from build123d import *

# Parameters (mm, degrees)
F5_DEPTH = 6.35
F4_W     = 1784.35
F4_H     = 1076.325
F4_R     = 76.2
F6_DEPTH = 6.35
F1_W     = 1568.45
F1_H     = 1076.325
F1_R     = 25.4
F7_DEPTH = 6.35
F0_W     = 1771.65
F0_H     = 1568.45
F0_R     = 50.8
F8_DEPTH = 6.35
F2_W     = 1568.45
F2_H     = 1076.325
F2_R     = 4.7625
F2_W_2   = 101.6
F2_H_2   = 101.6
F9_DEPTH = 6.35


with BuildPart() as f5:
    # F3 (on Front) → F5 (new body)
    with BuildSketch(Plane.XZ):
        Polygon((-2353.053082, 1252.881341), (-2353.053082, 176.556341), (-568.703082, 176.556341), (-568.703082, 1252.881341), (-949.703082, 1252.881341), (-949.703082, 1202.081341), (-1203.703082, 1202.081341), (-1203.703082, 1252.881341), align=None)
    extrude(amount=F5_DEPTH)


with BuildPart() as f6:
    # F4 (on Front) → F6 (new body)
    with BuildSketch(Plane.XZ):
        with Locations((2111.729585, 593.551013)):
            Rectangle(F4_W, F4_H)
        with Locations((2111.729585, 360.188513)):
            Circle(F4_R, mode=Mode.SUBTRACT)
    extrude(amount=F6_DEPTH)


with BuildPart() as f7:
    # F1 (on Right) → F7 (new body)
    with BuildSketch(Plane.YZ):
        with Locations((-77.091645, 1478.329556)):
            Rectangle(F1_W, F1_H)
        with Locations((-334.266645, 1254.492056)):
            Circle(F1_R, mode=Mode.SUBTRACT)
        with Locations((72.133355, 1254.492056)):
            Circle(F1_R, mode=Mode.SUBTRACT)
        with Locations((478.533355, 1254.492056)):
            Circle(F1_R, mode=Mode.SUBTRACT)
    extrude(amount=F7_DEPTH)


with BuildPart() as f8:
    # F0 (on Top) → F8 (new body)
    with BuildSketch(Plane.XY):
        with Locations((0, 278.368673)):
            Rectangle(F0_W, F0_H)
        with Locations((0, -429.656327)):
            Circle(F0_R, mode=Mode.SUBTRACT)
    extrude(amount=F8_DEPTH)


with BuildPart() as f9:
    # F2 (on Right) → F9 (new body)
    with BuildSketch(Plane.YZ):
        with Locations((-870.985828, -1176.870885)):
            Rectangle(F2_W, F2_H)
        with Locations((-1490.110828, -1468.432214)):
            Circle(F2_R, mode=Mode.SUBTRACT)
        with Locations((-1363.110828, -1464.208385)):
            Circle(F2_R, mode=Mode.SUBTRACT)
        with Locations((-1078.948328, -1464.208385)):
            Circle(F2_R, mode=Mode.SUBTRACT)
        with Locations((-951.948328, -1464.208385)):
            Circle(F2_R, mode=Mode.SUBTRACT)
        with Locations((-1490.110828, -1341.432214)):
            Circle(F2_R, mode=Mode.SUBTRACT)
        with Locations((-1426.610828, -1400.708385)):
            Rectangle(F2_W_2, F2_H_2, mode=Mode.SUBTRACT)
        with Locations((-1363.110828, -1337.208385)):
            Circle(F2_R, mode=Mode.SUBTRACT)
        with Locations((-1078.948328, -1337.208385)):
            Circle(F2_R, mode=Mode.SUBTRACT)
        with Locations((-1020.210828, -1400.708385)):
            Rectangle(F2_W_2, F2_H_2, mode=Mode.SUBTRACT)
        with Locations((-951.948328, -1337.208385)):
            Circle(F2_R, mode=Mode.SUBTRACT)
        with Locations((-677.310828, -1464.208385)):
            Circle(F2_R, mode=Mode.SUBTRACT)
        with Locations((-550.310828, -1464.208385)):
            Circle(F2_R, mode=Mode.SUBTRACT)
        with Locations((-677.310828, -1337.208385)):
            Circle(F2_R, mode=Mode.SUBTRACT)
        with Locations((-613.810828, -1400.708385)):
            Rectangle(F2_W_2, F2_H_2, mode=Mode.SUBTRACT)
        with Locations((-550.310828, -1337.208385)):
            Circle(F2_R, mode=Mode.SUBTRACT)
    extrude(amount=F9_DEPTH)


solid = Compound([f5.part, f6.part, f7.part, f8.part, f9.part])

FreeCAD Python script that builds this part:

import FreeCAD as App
import Part
import Sketcher
Q = App.Units.Quantity


def add_polygon(sketch, points):
    """Adds a closed chain of lines whose ends are joined by coincident constraints."""
    first, n = sketch.GeometryCount, len(points)
    for a, b in zip(points, points[1:] + points[:1]):
        sketch.addGeometry(Part.LineSegment(App.Vector(*a, 0), App.Vector(*b, 0)), False)
    for i in range(n):
        sketch.addConstraint(Sketcher.Constraint("Coincident", first + i, 2, first + (i + 1) % n, 1))

doc = App.newDocument("Part")
body = doc.addObject("PartDesign::Body", "Body")

sketch1 = body.newObject("Sketcher::SketchObject", "Sketch")
sketch1.AttachmentSupport = (doc.getObject("XZ_Plane"), [""])
sketch1.MapMode = "FlatFace"
add_polygon(sketch1, [(-2353, 1253), (-2353, 177), (-569, 177), (-569, 1253), (-950, 1253), (-950, 1202), (-1204, 1202), (-1204, 1253)])
sketch1.addConstraint(Sketcher.Constraint("Vertical", 0))
sketch1.addConstraint(Sketcher.Constraint("Horizontal", 1))
sketch1.addConstraint(Sketcher.Constraint("Vertical", 2))
sketch1.addConstraint(Sketcher.Constraint("Horizontal", 3))
sketch1.addConstraint(Sketcher.Constraint("Vertical", 4))
sketch1.addConstraint(Sketcher.Constraint("Horizontal", 5))
sketch1.addConstraint(Sketcher.Constraint("Vertical", 6))
sketch1.addConstraint(Sketcher.Constraint("Horizontal", 7))
sketch1.addConstraint(Sketcher.Constraint("Horizontal", 3, 2, 6, 2))
sketch1.addConstraint(Sketcher.Constraint("DistanceX", 3, 2, 3, 1, Q("15 in")))
sketch1.addConstraint(Sketcher.Constraint("DistanceX", 5, 2, 5, 1, Q("10 in")))
sketch1.addConstraint(Sketcher.Constraint("DistanceY", 4, 2, 4, 1, Q("2 in")))
sketch1.addConstraint(Sketcher.Constraint("DistanceX", 1, 1, 1, 2, Q("70.25 in")))
sketch1.addConstraint(Sketcher.Constraint("DistanceY", 0, 2, 0, 1, Q("42.375 in")))
sketch1.addConstraint(Sketcher.Constraint("DistanceX", 0, 2, -1, 1, 2353.053082))
sketch1.addConstraint(Sketcher.Constraint("DistanceY", -1, 1, 0, 2, 176.556341))
pad1 = body.newObject("PartDesign::Pad", "Pad")
pad1.Profile = sketch1
pad1.Length = Q("0.25 in")
body2 = doc.addObject("PartDesign::Body", "Body001")

sketch2 = body2.newObject("Sketcher::SketchObject", "Sketch001")
sketch2.AttachmentSupport = (doc.getObject("XZ_Plane001"), [""])
sketch2.MapMode = "FlatFace"
add_polygon(sketch2, [(1220, 1132), (1220, 55), (3004, 55), (3004, 1132)])
sketch2.addGeometry(Part.Circle(App.Vector(2112, 360, 0), App.Vector(0, 0, 1), 76), False)
sketch2.addConstraint(Sketcher.Constraint("Vertical", 0))
sketch2.addConstraint(Sketcher.Constraint("Horizontal", 1))
sketch2.addConstraint(Sketcher.Constraint("Vertical", 2))
sketch2.addConstraint(Sketcher.Constraint("Horizontal", 3))
sketch2.addConstraint(Sketcher.Constraint("Diameter", 4, Q("6 in")))
sketch2.addConstraint(Sketcher.Constraint("DistanceY", 0, 2, 4, 3, Q("12 in")))
sketch2.addConstraint(Sketcher.Constraint("DistanceX", 1, 1, 1, 2, Q("70.25 in")))
sketch2.addConstraint(Sketcher.Constraint("DistanceY", 0, 2, 0, 1, Q("42.375 in")))
sketch2.addConstraint(Sketcher.Constraint("DistanceX", 0, 2, 4, 3, Q("35.125 in")))
sketch2.addConstraint(Sketcher.Constraint("DistanceX", -1, 1, 4, 3, 2111.729585))
sketch2.addConstraint(Sketcher.Constraint("DistanceY", -1, 1, 4, 3, 360.188513))
pad2 = body2.newObject("PartDesign::Pad", "Pad001")
pad2.Profile = sketch2
pad2.Length = Q("0.25 in")
body3 = doc.addObject("PartDesign::Body", "Body002")

sketch3 = body3.newObject("Sketcher::SketchObject", "Sketch002")
sketch3.AttachmentSupport = (doc.getObject("YZ_Plane002"), [""])
sketch3.MapMode = "FlatFace"
add_polygon(sketch3, [(-861, 2016), (-861, 940), (707, 940), (707, 2016)])
sketch3.addGeometry(Part.Circle(App.Vector(-334, 1254, 0), App.Vector(0, 0, 1), 25), False)
sketch3.addGeometry(Part.Circle(App.Vector(72, 1254, 0), App.Vector(0, 0, 1), 25), False)
sketch3.addGeometry(Part.Circle(App.Vector(479, 1254, 0), App.Vector(0, 0, 1), 25), False)
sketch3.addConstraint(Sketcher.Constraint("Vertical", 0))
sketch3.addConstraint(Sketcher.Constraint("Horizontal", 1))
sketch3.addConstraint(Sketcher.Constraint("Vertical", 2))
sketch3.addConstraint(Sketcher.Constraint("Horizontal", 3))
sketch3.addConstraint(Sketcher.Constraint("Equal", 4, 5))
sketch3.addConstraint(Sketcher.Constraint("Equal", 5, 6))
sketch3.addConstraint(Sketcher.Constraint("Horizontal", 4, 3, 5, 3))
sketch3.addConstraint(Sketcher.Constraint("Horizontal", 5, 3, 6, 3))
sketch3.addConstraint(Sketcher.Constraint("Diameter", 4, Q("2 in")))
sketch3.addConstraint(Sketcher.Constraint("DistanceX", 4, 3, 5, 3, Q("16 in")))
sketch3.addConstraint(Sketcher.Constraint("DistanceX", 5, 3, 6, 3, Q("16 in")))
sketch3.addConstraint(Sketcher.Constraint("DistanceX", 6, 3, 1, 2, Q("9 in")))
sketch3.addConstraint(Sketcher.Constraint("DistanceY", 6, 3, 2, 2, Q("30 in")))
sketch3.addConstraint(Sketcher.Constraint("DistanceX", 1, 1, 1, 2, Q("61.75 in")))
sketch3.addConstraint(Sketcher.Constraint("DistanceY", 0, 2, 0, 1, Q("42.375 in")))
sketch3.addConstraint(Sketcher.Constraint("DistanceX", 4, 3, -1, 1, 334.266645))
sketch3.addConstraint(Sketcher.Constraint("DistanceY", -1, 1, 4, 3, 1254.492056))
pad3 = body3.newObject("PartDesign::Pad", "Pad002")
pad3.Profile = sketch3
pad3.Length = Q("0.25 in")
body4 = doc.addObject("PartDesign::Body", "Body003")

sketch4 = body4.newObject("Sketcher::SketchObject", "Sketch003")
sketch4.AttachmentSupport = (doc.getObject("XY_Plane003"), [""])
sketch4.MapMode = "FlatFace"
add_polygon(sketch4, [(-886, 1063), (-886, -506), (886, -506), (886, 1063)])
sketch4.addGeometry(Part.Circle(App.Vector(0, -430, 0), App.Vector(0, 0, 1), 51), False)
sketch4.addConstraint(Sketcher.Constraint("Vertical", 0))
sketch4.addConstraint(Sketcher.Constraint("Horizontal", 1))
sketch4.addConstraint(Sketcher.Constraint("Vertical", 2))
sketch4.addConstraint(Sketcher.Constraint("Horizontal", 3))
sketch4.addConstraint(Sketcher.Constraint("PointOnObject", 4, 3, -2))
sketch4.addConstraint(Sketcher.Constraint("Diameter", 4, Q("4 in")))
sketch4.addConstraint(Sketcher.Constraint("DistanceY", 0, 2, 4, 3, Q("3 in")))
sketch4.addConstraint(Sketcher.Constraint("DistanceX", 1, 1, 1, 2, Q("69.75 in")))
sketch4.addConstraint(Sketcher.Constraint("DistanceY", 0, 2, 0, 1, Q("61.75 in")))
sketch4.addConstraint(Sketcher.Constraint("DistanceX", 0, 2, -1, 1, Q("34.875 in")))
sketch4.addConstraint(Sketcher.Constraint("DistanceY", 4, 3, -1, 1, 429.656327))
pad4 = body4.newObject("PartDesign::Pad", "Pad003")
pad4.Profile = sketch4
pad4.Length = Q("0.25 in")
body5 = doc.addObject("PartDesign::Body", "Body004")

sketch5 = body5.newObject("Sketcher::SketchObject", "Sketch004")
sketch5.AttachmentSupport = (doc.getObject("YZ_Plane004"), [""])
sketch5.MapMode = "FlatFace"
add_polygon(sketch5, [(-1655.2, -638.7), (-1655.2, -1715), (-86.8, -1715), (-86.8, -638.7)])
sketch5.addGeometry(Part.Circle(App.Vector(-1490.1, -1468.4, 0), App.Vector(0, 0, 1), 4.8), False)
sketch5.addGeometry(Part.Circle(App.Vector(-1363.1, -1464.2, 0), App.Vector(0, 0, 1), 4.8), False)
sketch5.addGeometry(Part.Circle(App.Vector(-1078.9, -1464.2, 0), App.Vector(0, 0, 1), 4.8), False)
sketch5.addGeometry(Part.Circle(App.Vector(-951.9, -1464.2, 0), App.Vector(0, 0, 1), 4.8), False)
sketch5.addGeometry(Part.Circle(App.Vector(-677.3, -1464.2, 0), App.Vector(0, 0, 1), 4.8), False)
sketch5.addGeometry(Part.Circle(App.Vector(-550.3, -1464.2, 0), App.Vector(0, 0, 1), 4.8), False)
add_polygon(sketch5, [(-1375.8, -1451.5), (-1477.4, -1451.5), (-1477.4, -1349.9), (-1375.8, -1349.9)])
sketch5.addGeometry(Part.Circle(App.Vector(-1490.1, -1341.4, 0), App.Vector(0, 0, 1), 4.8), False)
sketch5.addGeometry(Part.Circle(App.Vector(-1363.1, -1337.2, 0), App.Vector(0, 0, 1), 4.8), False)
sketch5.addGeometry(Part.Circle(App.Vector(-1078.9, -1337.2, 0), App.Vector(0, 0, 1), 4.8), False)
add_polygon(sketch5, [(-969.4, -1451.5), (-1071, -1451.5), (-1071, -1349.9), (-969.4, -1349.9)])
add_polygon(sketch5, [(-563, -1451.5), (-664.6, -1451.5), (-664.6, -1349.9), (-563, -1349.9)])
sketch5.addGeometry(Part.Circle(App.Vector(-951.9, -1337.2, 0), App.Vector(0, 0, 1), 4.8), False)
sketch5.addGeometry(Part.Circle(App.Vector(-677.3, -1337.2, 0), App.Vector(0, 0, 1), 4.8), False)
sketch5.addGeometry(Part.Circle(App.Vector(-550.3, -1337.2, 0), App.Vector(0, 0, 1), 4.8), False)
sketch5.addConstraint(Sketcher.Constraint("Vertical", 0))
sketch5.addConstraint(Sketcher.Constraint("Horizontal", 1))
sketch5.addConstraint(Sketcher.Constraint("Vertical", 2))
sketch5.addConstraint(Sketcher.Constraint("Horizontal", 3))
sketch5.addConstraint(Sketcher.Constraint("Horizontal", 10))
sketch5.addConstraint(Sketcher.Constraint("Vertical", 11))
sketch5.addConstraint(Sketcher.Constraint("Horizontal", 12))
sketch5.addConstraint(Sketcher.Constraint("Vertical", 13))
sketch5.addConstraint(Sketcher.Constraint("Horizontal", 17))
sketch5.addConstraint(Sketcher.Constraint("Vertical", 18))
sketch5.addConstraint(Sketcher.Constraint("Horizontal", 19))
sketch5.addConstraint(Sketcher.Constraint("Vertical", 20))
sketch5.addConstraint(Sketcher.Constraint("Horizontal", 21))
sketch5.addConstraint(Sketcher.Constraint("Vertical", 22))
sketch5.addConstraint(Sketcher.Constraint("Horizontal", 23))
sketch5.addConstraint(Sketcher.Constraint("Vertical", 24))
sketch5.addConstraint(Sketcher.Constraint("Equal", 4, 5))
sketch5.addConstraint(Sketcher.Constraint("Equal", 5, 6))
sketch5.addConstraint(Sketcher.Constraint("Equal", 6, 7))
sketch5.addConstraint(Sketcher.Constraint("Equal", 7, 8))
sketch5.addConstraint(Sketcher.Constraint("Equal", 8, 9))
sketch5.addConstraint(Sketcher.Constraint("Equal", 9, 14))
sketch5.addConstraint(Sketcher.Constraint("Equal", 14, 15))
sketch5.addConstraint(Sketcher.Constraint("Equal", 15, 16))
sketch5.addConstraint(Sketcher.Constraint("Equal", 16, 25))
sketch5.addConstraint(Sketcher.Constraint("Equal", 25, 26))
sketch5.addConstraint(Sketcher.Constraint("Equal", 26, 27))
sketch5.addConstraint(Sketcher.Constraint("Horizontal", 5, 3, 6, 3))
sketch5.addConstraint(Sketcher.Constraint("Horizontal", 6, 3, 7, 3))
sketch5.addConstraint(Sketcher.Constraint("Horizontal", 7, 3, 8, 3))
sketch5.addConstraint(Sketcher.Constraint("Horizontal", 8, 3, 9, 3))
sketch5.addConstraint(Sketcher.Constraint("Horizontal", 15, 3, 16, 3))
sketch5.addConstraint(Sketcher.Constraint("Horizontal", 16, 3, 25, 3))
sketch5.addConstraint(Sketcher.Constraint("Horizontal", 25, 3, 26, 3))
sketch5.addConstraint(Sketcher.Constraint("Horizontal", 26, 3, 27, 3))
sketch5.addConstraint(Sketcher.Constraint("Horizontal", 13, 2, 17, 2))
sketch5.addConstraint(Sketcher.Constraint("Horizontal", 12, 2, 18, 2))
sketch5.addConstraint(Sketcher.Constraint("Horizontal", 20, 2, 21, 2))
sketch5.addConstraint(Sketcher.Constraint("Horizontal", 19, 2, 22, 2))
sketch5.addConstraint(Sketcher.Constraint("Vertical", 4, 3, 14, 3))
sketch5.addConstraint(Sketcher.Constraint("Vertical", 5, 3, 15, 3))
sketch5.addConstraint(Sketcher.Constraint("Vertical", 6, 3, 16, 3))
sketch5.addConstraint(Sketcher.Constraint("Vertical", 7, 3, 25, 3))
sketch5.addConstraint(Sketcher.Constraint("Vertical", 8, 3, 26, 3))
sketch5.addConstraint(Sketcher.Constraint("Vertical", 9, 3, 27, 3))
sketch5.addConstraint(Sketcher.Constraint("Equal", 12, 17))
sketch5.addConstraint(Sketcher.Constraint("Equal", 19, 21))
sketch5.addConstraint(Sketcher.Constraint("Equal", 23, 11))
sketch5.addConstraint(Sketcher.Constraint("DistanceX", 10, 2, 10, 1, Q("4 in")))
sketch5.addConstraint(Sketcher.Constraint("Diameter", 4, Q("0.375 in")))
sketch5.addConstraint(Sketcher.Constraint("DistanceX", 4, 3, 5, 3, Q("5 in")))
sketch5.addConstraint(Sketcher.Constraint("DistanceX", 6, 3, 7, 3, Q("5 in")))
sketch5.addConstraint(Sketcher.Constraint("DistanceX", 5, 3, 8, 3, Q("27 in")))
sketch5.addConstraint(Sketcher.Constraint("DistanceX", 8, 3, 9, 3, Q("5 in")))
sketch5.addConstraint(Sketcher.Constraint("DistanceY", 4, 3, 14, 3, Q("5 in")))
sketch5.addConstraint(Sketcher.Constraint("DistanceY", 5, 3, 15, 3, Q("5 in")))
sketch5.addConstraint(Sketcher.Constraint("DistanceX", 0, 2, 10, 2, Q("7 in")))
sketch5.addConstraint(Sketcher.Constraint("DistanceX", 1, 1, 1, 2, Q("61.75 in")))
sketch5.addConstraint(Sketcher.Constraint("DistanceX", 0, 2, 4, 3, Q("6.5 in")))
sketch5.addConstraint(Sketcher.Constraint("DistanceY", 27, 3, 2, 2, Q("27.5 in")))
sketch5.addConstraint(Sketcher.Constraint("DistanceY", 5, 3, 10, 2, Q("0.5 in")))
sketch5.addConstraint(Sketcher.Constraint("DistanceX", 5, 3, 17, 2, Q("11.5 in")))
sketch5.addConstraint(Sketcher.Constraint("DistanceX", 8, 3, 21, 2, Q("0.5 in")))
sketch5.addConstraint(Sketcher.Constraint("DistanceY", 0, 2, 0, 1, Q("42.375 in")))
sketch5.addConstraint(Sketcher.Constraint("DistanceX", 5, 3, 6, 3, Q("11.1875 in")))
sketch5.addConstraint(Sketcher.Constraint("DistanceX", 4, 3, -1, 1, 1490.110828))
sketch5.addConstraint(Sketcher.Constraint("DistanceY", 4, 3, 5, 3, 4.223829))
sketch5.addConstraint(Sketcher.Constraint("DistanceY", 4, 3, -1, 1, 1468.432214))
pad5 = body5.newObject("PartDesign::Pad", "Pad004")
pad5.Profile = sketch5
pad5.Length = Q("0.25 in")

doc.recompute()
